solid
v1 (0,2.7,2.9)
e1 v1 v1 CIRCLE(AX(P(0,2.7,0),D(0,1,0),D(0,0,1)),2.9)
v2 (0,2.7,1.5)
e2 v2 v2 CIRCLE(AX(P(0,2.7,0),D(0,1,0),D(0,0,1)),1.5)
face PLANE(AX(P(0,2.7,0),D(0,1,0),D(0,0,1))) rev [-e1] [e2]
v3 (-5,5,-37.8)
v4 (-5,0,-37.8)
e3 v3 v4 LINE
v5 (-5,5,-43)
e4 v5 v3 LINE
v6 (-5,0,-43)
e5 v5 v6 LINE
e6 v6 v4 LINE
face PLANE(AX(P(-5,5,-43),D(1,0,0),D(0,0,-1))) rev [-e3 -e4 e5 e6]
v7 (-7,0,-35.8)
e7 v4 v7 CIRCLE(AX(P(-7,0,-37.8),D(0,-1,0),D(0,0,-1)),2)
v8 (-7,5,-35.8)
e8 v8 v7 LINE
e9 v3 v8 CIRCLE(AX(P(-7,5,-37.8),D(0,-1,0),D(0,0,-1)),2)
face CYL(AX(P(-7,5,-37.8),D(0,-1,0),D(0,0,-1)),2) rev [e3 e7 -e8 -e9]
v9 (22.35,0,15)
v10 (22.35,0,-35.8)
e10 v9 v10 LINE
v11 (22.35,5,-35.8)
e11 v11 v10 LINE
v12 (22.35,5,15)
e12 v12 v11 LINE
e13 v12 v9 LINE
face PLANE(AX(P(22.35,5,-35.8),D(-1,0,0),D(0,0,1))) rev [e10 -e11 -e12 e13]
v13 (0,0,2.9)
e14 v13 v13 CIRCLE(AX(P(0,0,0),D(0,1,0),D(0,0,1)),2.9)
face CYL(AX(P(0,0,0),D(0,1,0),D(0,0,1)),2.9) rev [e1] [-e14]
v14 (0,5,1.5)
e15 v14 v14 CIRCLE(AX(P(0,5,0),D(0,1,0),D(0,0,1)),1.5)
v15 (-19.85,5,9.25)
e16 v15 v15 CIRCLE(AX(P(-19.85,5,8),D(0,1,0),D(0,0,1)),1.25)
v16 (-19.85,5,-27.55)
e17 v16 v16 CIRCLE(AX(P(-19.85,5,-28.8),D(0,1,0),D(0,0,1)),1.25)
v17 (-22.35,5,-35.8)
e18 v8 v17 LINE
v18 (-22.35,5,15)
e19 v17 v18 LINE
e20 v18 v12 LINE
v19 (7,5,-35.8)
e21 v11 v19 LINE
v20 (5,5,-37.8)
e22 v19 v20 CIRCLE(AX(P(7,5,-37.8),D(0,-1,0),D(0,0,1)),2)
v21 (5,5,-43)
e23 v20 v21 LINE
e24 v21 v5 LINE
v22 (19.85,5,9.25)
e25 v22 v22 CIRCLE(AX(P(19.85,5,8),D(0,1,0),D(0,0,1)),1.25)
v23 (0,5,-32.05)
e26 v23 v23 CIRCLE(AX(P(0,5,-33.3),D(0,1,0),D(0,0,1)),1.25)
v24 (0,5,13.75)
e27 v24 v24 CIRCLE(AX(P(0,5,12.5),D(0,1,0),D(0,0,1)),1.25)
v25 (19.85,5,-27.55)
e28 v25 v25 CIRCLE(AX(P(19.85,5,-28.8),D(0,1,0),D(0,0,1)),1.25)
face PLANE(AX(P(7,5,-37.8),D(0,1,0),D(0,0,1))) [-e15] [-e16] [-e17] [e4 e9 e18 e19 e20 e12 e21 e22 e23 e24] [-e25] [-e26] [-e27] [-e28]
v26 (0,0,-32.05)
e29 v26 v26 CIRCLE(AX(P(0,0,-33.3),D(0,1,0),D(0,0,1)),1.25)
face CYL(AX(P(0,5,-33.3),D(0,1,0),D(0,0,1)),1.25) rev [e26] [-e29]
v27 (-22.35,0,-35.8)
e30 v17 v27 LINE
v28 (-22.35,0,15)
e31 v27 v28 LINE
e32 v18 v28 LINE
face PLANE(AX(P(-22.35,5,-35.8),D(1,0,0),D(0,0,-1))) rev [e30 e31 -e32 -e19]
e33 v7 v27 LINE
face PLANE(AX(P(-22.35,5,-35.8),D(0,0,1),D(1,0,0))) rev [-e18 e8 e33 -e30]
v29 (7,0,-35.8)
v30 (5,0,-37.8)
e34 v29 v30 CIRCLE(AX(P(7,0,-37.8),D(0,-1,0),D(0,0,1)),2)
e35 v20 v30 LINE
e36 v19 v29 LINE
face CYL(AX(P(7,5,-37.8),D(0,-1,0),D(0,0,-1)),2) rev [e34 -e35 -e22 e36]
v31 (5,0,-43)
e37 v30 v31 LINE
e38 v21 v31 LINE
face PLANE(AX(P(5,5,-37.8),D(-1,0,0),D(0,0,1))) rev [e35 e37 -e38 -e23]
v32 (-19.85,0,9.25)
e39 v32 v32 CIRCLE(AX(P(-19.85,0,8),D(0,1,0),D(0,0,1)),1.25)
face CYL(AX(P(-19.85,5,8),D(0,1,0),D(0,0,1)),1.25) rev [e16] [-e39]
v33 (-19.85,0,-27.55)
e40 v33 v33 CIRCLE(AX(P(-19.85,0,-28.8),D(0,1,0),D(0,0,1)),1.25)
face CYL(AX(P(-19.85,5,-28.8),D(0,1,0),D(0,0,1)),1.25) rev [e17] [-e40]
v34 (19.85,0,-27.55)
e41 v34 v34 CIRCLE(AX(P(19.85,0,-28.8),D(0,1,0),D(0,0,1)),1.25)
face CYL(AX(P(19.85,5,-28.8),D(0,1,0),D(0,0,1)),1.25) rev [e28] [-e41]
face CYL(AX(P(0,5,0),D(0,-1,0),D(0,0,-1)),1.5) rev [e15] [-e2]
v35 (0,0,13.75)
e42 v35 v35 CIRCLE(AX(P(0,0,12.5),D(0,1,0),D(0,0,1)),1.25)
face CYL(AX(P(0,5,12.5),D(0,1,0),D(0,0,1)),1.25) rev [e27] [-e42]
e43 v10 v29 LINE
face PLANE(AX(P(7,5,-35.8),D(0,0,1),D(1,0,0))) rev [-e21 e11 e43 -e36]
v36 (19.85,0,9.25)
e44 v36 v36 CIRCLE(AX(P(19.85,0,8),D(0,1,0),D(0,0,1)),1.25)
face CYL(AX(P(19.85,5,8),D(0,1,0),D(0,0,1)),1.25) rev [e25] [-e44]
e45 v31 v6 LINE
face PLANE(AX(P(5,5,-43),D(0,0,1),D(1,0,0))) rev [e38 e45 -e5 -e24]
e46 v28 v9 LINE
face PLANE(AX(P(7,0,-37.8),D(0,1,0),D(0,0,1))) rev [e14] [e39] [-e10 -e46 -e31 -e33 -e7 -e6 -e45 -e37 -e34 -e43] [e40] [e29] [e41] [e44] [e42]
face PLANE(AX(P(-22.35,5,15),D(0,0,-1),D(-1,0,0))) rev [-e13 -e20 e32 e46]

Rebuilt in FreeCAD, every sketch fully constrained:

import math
import FreeCAD as App
import Part
import Sketcher

V = App.Vector

doc = App.newDocument("Part")
body = doc.addObject("PartDesign::Body", "Body")

# Sketch on XZ plane
sketch1 = doc.addObject("Sketcher::SketchObject", "Sketch")
body.addObject(sketch1)
sketch1.AttachmentSupport = (doc.XZ_Plane, [""])
sketch1.MapMode = "FlatFace"
sketch1.addGeometry(Part.LineSegment(V(-7, -35.8, 0), V(-22.4, -35.8, 0)), False)
sketch1.addGeometry(Part.LineSegment(V(-22.4, -35.8, 0), V(-22.4, 15, 0)), False)
sketch1.addGeometry(Part.LineSegment(V(-22.4, 15, 0), V(22.4, 15, 0)), False)
sketch1.addGeometry(Part.LineSegment(V(22.4, 15, 0), V(22.4, -35.8, 0)), False)
sketch1.addGeometry(Part.LineSegment(V(22.4, -35.8, 0), V(7, -35.8, 0)), False)
sketch1.addGeometry(Part.ArcOfCircle(Part.Circle(V(7, -37.8, 0), V(0, 0, 1), 2), math.radians(90), math.radians(180)), False)
sketch1.addGeometry(Part.LineSegment(V(5, -37.8, 0), V(5, -43, 0)), False)
sketch1.addGeometry(Part.LineSegment(V(5, -43, 0), V(-5, -43, 0)), False)
sketch1.addGeometry(Part.LineSegment(V(-5, -43, 0), V(-5, -37.8, 0)), False)
sketch1.addGeometry(Part.ArcOfCircle(Part.Circle(V(-7, -37.8, 0), V(0, 0, 1), 2), math.radians(0), math.radians(90)), False)
sketch1.addGeometry(Part.Circle(V(0, 0, 0), V(0, 0, 1), 1.5), False)
sketch1.addConstraint(Sketcher.Constraint("Coincident", 0, 2, 1, 1))
sketch1.addConstraint(Sketcher.Constraint("Coincident", 1, 2, 2, 1))
sketch1.addConstraint(Sketcher.Constraint("Coincident", 2, 2, 3, 1))
sketch1.addConstraint(Sketcher.Constraint("Coincident", 3, 2, 4, 1))
sketch1.addConstraint(Sketcher.Constraint("Tangent", 4, 2, 5, 1))
sketch1.addConstraint(Sketcher.Constraint("Tangent", 5, 2, 6, 1))
sketch1.addConstraint(Sketcher.Constraint("Coincident", 6, 2, 7, 1))
sketch1.addConstraint(Sketcher.Constraint("Coincident", 7, 2, 8, 1))
sketch1.addConstraint(Sketcher.Constraint("Tangent", 8, 2, 9, 1))
sketch1.addConstraint(Sketcher.Constraint("Tangent", 9, 2, 0, 1))
sketch1.addConstraint(Sketcher.Constraint("Horizontal", 0))
sketch1.addConstraint(Sketcher.Constraint("Vertical", 1))
sketch1.addConstraint(Sketcher.Constraint("Horizontal", 2))
sketch1.addConstraint(Sketcher.Constraint("Vertical", 3))
sketch1.addConstraint(Sketcher.Constraint("Horizontal", 4))
sketch1.addConstraint(Sketcher.Constraint("Vertical", 6))
sketch1.addConstraint(Sketcher.Constraint("Horizontal", 7))
sketch1.addConstraint(Sketcher.Constraint("Vertical", 8))
sketch1.addConstraint(Sketcher.Constraint("Coincident", 10, 3, -1, 1))
sketch1.addConstraint(Sketcher.Constraint("Equal", 5, 9))
sketch1.addConstraint(Sketcher.Constraint("Symmetric", 5, 3, 9, 3, -2))
sketch1.addConstraint(Sketcher.Constraint("Equal", 0, 4))
sketch1.addConstraint(Sketcher.Constraint("Diameter", 10, 3.0))
sketch1.addConstraint(Sketcher.Constraint("Radius", 5, 2.0))
sketch1.addConstraint(Sketcher.Constraint("DistanceX", 7, 2, 7, 1, 10.0))
sketch1.addConstraint(Sketcher.Constraint("DistanceX", 2, 1, 2, 2, 44.7))
sketch1.addConstraint(Sketcher.Constraint("DistanceY", 1, 1, 1, 2, 50.8))
sketch1.addConstraint(Sketcher.Constraint("DistanceY", 6, 2, 6, 1, 5.2))
sketch1.addConstraint(Sketcher.Constraint("DistanceY", -1, 1, 1, 2, 15.0))
pad1 = doc.addObject("PartDesign::Pad", "Pad")
body.addObject(pad1)
pad1.Profile = sketch1
pad1.Length = 5
pad1.Reversed = True

# Sketch on XZ plane
sketch2 = doc.addObject("Sketcher::SketchObject", "Sketch001")
body.addObject(sketch2)
sketch2.AttachmentSupport = (doc.XZ_Plane, [""])
sketch2.MapMode = "FlatFace"
sketch2.AttachmentOffset = App.Placement(V(0, 0, -5), App.Rotation())
sketch2.addGeometry(Part.Circle(V(0, -33.3, 0), V(0, 0, 1), 1.2), False)
sketch2.addGeometry(Part.Circle(V(19.9, -28.8, 0), V(0, 0, 1), 1.2), False)
sketch2.addGeometry(Part.Circle(V(19.9, 8, 0), V(0, 0, 1), 1.2), False)
sketch2.addGeometry(Part.Circle(V(0, 12.5, 0), V(0, 0, 1), 1.2), False)
sketch2.addGeometry(Part.Circle(V(-19.9, -28.8, 0), V(0, 0, 1), 1.2), False)
sketch2.addGeometry(Part.Circle(V(-19.9, 8, 0), V(0, 0, 1), 1.2), False)
sketch2.addConstraint(Sketcher.Constraint("Equal", 0, 1))
sketch2.addConstraint(Sketcher.Constraint("Equal", 1, 2))
sketch2.addConstraint(Sketcher.Constraint("Equal", 2, 3))
sketch2.addConstraint(Sketcher.Constraint("Equal", 3, 4))
sketch2.addConstraint(Sketcher.Constraint("Equal", 4, 5))
sketch2.addConstraint(Sketcher.Constraint("Symmetric", 1, 3, 4, 3, -2))
sketch2.addConstraint(Sketcher.Constraint("Symmetric", 2, 3, 5, 3, -2))
sketch2.addConstraint(Sketcher.Constraint("PointOnObject", 0, 3, -2))
sketch2.addConstraint(Sketcher.Constraint("PointOnObject", 3, 3, -2))
sketch2.addConstraint(Sketcher.Constraint("Vertical", 1, 3, 2, 3))
sketch2.addConstraint(Sketcher.Constraint("Diameter", 0, 2.5))
sketch2.addConstraint(Sketcher.Constraint("DistanceY", -1, 1, 2, 3, 8.0))
sketch2.addConstraint(Sketcher.Constraint("DistanceY", 0, 3, -1, 1, 33.3))
sketch2.addConstraint(Sketcher.Constraint("DistanceY", 1, 3, -1, 1, 28.8))
sketch2.addConstraint(Sketcher.Constraint("DistanceY", -1, 1, 3, 3, 12.5))
sketch2.addConstraint(Sketcher.Constraint("DistanceX", 4, 3, 1, 3, 39.7))
doc.recompute()
hole = doc.addObject("PartDesign::Hole", "Hole")
body.addObject(hole)
hole.Profile = sketch2
hole.ThreadType = "None"
hole.Diameter = 2.5
hole.DepthType = "ThroughAll"
hole.Reversed = True

# Sketch on XZ plane
sketch3 = doc.addObject("Sketcher::SketchObject", "Sketch002")
body.addObject(sketch3)
sketch3.AttachmentSupport = (doc.XZ_Plane, [""])
sketch3.MapMode = "FlatFace"
sketch3.AttachmentOffset = App.Placement(V(0, 0, -2.7), App.Rotation())
sketch3.addGeometry(Part.Circle(V(0, 0, 0), V(0, 0, 1), 2.9), False)
sketch3.addConstraint(Sketcher.Constraint("Coincident", 0, 3, -1, 1))
sketch3.addConstraint(Sketcher.Constraint("Diameter", 0, 5.8))
pocket1 = doc.addObject("PartDesign::Pocket", "Pocket")
body.addObject(pocket1)
pocket1.Profile = sketch3
pocket1.Type = "ThroughAll"
pocket1.Reversed = True

doc.recompute()
